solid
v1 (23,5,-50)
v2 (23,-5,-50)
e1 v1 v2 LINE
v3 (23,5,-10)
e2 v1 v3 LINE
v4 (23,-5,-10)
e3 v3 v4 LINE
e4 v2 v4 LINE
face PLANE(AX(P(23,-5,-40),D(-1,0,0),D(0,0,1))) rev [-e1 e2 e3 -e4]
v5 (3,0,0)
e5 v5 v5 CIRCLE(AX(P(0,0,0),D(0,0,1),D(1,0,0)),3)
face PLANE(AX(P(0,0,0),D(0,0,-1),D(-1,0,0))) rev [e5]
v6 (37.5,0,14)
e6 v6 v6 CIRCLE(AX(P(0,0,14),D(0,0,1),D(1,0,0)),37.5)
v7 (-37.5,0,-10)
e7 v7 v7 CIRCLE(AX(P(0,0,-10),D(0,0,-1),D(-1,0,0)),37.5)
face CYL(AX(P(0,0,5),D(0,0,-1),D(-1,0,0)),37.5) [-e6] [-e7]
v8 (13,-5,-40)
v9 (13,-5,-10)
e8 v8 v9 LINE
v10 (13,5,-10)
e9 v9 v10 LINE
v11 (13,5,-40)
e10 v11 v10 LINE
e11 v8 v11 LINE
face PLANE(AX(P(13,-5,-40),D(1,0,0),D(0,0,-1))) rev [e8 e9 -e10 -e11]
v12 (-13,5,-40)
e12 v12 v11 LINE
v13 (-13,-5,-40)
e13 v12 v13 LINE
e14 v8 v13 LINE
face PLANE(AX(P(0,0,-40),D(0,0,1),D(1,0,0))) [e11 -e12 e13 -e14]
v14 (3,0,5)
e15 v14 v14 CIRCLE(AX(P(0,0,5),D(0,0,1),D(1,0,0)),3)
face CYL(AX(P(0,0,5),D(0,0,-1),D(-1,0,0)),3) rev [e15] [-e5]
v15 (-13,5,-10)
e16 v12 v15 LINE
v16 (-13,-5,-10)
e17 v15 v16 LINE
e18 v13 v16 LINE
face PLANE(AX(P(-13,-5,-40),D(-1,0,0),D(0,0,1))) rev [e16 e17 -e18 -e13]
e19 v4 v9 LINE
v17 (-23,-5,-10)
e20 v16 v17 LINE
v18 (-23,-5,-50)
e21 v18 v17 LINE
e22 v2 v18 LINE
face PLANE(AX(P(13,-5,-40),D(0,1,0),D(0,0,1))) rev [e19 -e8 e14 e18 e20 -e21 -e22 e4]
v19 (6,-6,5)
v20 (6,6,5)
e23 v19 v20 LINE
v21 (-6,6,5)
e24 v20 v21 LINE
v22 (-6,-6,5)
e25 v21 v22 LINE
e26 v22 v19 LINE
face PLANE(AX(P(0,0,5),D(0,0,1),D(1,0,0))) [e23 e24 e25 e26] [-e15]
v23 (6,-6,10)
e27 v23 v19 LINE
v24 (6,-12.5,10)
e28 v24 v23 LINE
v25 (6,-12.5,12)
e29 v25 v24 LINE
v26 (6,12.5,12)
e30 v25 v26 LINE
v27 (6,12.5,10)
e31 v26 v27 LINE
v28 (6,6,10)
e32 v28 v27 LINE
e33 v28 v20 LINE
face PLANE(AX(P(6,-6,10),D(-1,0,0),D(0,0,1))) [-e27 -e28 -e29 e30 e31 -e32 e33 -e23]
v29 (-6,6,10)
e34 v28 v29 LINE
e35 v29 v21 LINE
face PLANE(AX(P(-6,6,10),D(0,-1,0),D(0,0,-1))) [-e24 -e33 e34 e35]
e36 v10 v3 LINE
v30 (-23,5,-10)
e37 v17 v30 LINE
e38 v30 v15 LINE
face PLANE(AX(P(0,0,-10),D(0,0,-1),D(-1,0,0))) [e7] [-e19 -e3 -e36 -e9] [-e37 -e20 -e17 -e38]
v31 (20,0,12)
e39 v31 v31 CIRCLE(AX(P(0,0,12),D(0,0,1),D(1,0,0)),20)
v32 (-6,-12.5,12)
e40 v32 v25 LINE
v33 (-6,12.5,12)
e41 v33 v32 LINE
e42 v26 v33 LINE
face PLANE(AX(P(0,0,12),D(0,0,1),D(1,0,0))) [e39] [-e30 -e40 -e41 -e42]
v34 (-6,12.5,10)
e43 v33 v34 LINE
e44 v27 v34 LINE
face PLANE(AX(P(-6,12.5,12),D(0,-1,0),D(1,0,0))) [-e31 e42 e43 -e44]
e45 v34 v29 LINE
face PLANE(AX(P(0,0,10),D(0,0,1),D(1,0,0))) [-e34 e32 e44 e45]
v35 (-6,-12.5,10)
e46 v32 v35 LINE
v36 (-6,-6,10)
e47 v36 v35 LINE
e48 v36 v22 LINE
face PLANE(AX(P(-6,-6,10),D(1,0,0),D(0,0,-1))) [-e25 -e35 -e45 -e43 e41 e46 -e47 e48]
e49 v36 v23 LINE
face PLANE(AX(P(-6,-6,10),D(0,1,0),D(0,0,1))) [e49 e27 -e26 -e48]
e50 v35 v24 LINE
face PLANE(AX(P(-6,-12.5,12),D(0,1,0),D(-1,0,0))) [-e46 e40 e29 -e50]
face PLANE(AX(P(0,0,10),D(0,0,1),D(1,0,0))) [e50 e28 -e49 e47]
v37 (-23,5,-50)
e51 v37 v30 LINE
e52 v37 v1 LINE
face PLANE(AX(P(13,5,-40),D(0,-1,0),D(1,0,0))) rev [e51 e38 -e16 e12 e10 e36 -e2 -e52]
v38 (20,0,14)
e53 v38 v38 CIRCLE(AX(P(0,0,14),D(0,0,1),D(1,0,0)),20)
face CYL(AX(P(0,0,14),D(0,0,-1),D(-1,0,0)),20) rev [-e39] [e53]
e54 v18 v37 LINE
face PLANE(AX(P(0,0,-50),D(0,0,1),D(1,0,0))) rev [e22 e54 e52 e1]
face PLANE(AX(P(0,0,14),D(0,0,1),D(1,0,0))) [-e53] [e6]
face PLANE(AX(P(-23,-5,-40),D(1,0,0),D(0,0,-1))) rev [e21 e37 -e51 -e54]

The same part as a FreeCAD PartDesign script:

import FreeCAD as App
import Part
import Sketcher
from FreeCAD import Vector


def add_polygon(sketch, points):
    """Adds a closed chain of lines whose ends are joined by coincident constraints."""
    first, n = sketch.GeometryCount, len(points)
    for a, b in zip(points, points[1:] + points[:1]):
        sketch.addGeometry(Part.LineSegment(App.Vector(*a, 0), App.Vector(*b, 0)), False)
    for i in range(n):
        sketch.addConstraint(Sketcher.Constraint("Coincident", first + i, 2, first + (i + 1) % n, 1))

doc = App.newDocument("Part")
body = doc.addObject("PartDesign::Body", "Body")

# Sketch on XY plane
sketch1 = body.newObject("Sketcher::SketchObject", "Sketch")
sketch1.AttachmentSupport = (doc.getObject("XY_Plane"), [""])
sketch1.MapMode = "FlatFace"
sketch1.addGeometry([
    Part.Circle(Vector(0, 0, 0), Vector(0, 0, 1), 37.5),
    Part.Circle(Vector(0, 0, 0), Vector(0, 0, 1), 3),
], False)
sketch1.addConstraint([
    Sketcher.Constraint("Coincident", 0, 3, -1, 1),
    Sketcher.Constraint("Coincident", 1, 3, -1, 1),
    Sketcher.Constraint("Diameter", 0, 75.0),
    Sketcher.Constraint("Diameter", 1, 6.0),
])
pad1 = body.newObject("PartDesign::Pad", "Pad")
pad1.Profile = sketch1
pad1.Length = 5

# Sketch on XY plane
sketch2 = body.newObject("Sketcher::SketchObject", "Sketch001")
sketch2.AttachmentSupport = (doc.getObject("XY_Plane"), [""])
sketch2.MapMode = "FlatFace"
sketch2.AttachmentOffset = App.Placement(Vector(0, 0, -10), App.Rotation())
sketch2.addGeometry(Part.Circle(Vector(0, 0, 0), Vector(0, 0, 1), 38), False)
sketch2.addConstraint([
    Sketcher.Constraint("Coincident", 0, 3, -1, 1),
    Sketcher.Constraint("Diameter", 0, 75.0),
])
pad2 = body.newObject("PartDesign::Pad", "Pad001")
pad2.Profile = sketch2
pad2.Length = 10

# Sketch on XY plane
sketch3 = body.newObject("Sketcher::SketchObject", "Sketch002")
sketch3.AttachmentSupport = (doc.getObject("XY_Plane"), [""])
sketch3.MapMode = "FlatFace"
sketch3.AttachmentOffset = App.Placement(Vector(0, 0, 5), App.Rotation())
sketch3.addGeometry(Part.Circle(Vector(0, 0, 0), Vector(0, 0, 1), 38), False)  # 0
add_polygon(sketch3, [(6, -6), (-6, -6), (-6, 6), (6, 6)])  # lines 1-4
sketch3.addConstraint([
    Sketcher.Constraint("Horizontal", 1),
    Sketcher.Constraint("Vertical", 2),
    Sketcher.Constraint("Horizontal", 3),
    Sketcher.Constraint("Vertical", 4),
    Sketcher.Constraint("Coincident", 0, 3, -1, 1),
    Sketcher.Constraint("Symmetric", 1, 2, 3, 2, -1, 1),
    Sketcher.Constraint("Equal", 3, 2),
    Sketcher.Constraint("Diameter", 0, 75.0),
    Sketcher.Constraint("DistanceX", 1, 2, 1, 1, 12.0),
])
pad3 = body.newObject("PartDesign::Pad", "Pad002")
pad3.Profile = sketch3
pad3.Length = 5

# Sketch on XY plane
sketch4 = body.newObject("Sketcher::SketchObject", "Sketch003")
sketch4.AttachmentSupport = (doc.getObject("XY_Plane"), [""])
sketch4.MapMode = "FlatFace"
sketch4.AttachmentOffset = App.Placement(Vector(0, 0, 10), App.Rotation())
sketch4.addGeometry(Part.Circle(Vector(0, 0, 0), Vector(0, 0, 1), 38), False)  # 0
add_polygon(sketch4, [(6, -12), (-6, -12), (-6, 12), (6, 12)])  # lines 1-4
sketch4.addConstraint([
    Sketcher.Constraint("Horizontal", 1),
    Sketcher.Constraint("Vertical", 2),
    Sketcher.Constraint("Horizontal", 3),
    Sketcher.Constraint("Vertical", 4),
    Sketcher.Constraint("Coincident", 0, 3, -1, 1),
    Sketcher.Constraint("Symmetric", 1, 2, 3, 2, -1, 1),
    Sketcher.Constraint("Diameter", 0, 75.0),
    Sketcher.Constraint("DistanceX", 1, 2, 1, 1, 12.0),
    Sketcher.Constraint("DistanceY", 2, 1, 2, 2, 25.0),
])
pad4 = body.newObject("PartDesign::Pad", "Pad003")
pad4.Profile = sketch4
pad4.Length = 2

# Sketch on XY plane
sketch5 = body.newObject("Sketcher::SketchObject", "Sketch004")
sketch5.AttachmentSupport = (doc.getObject("XY_Plane"), [""])
sketch5.MapMode = "FlatFace"
sketch5.AttachmentOffset = App.Placement(Vector(0, 0, 12), App.Rotation())
sketch5.addGeometry([
    Part.Circle(Vector(0, 0, 0), Vector(0, 0, 1), 38),
    Part.Circle(Vector(0, 0, 0), Vector(0, 0, 1), 20),
], False)
sketch5.addConstraint([
    Sketcher.Constraint("Coincident", 0, 3, -1, 1),
    Sketcher.Constraint("Coincident", 1, 3, -1, 1),
    Sketcher.Constraint("Diameter", 0, 75.0),
    Sketcher.Constraint("Diameter", 1, 40.0),
])
pad5 = body.newObject("PartDesign::Pad", "Pad004")
pad5.Profile = sketch5
pad5.Length = 2

# Sketch on XY plane
sketch6 = body.newObject("Sketcher::SketchObject", "Sketch005")
sketch6.AttachmentSupport = (doc.getObject("XY_Plane"), [""])
sketch6.MapMode = "FlatFace"
sketch6.AttachmentOffset = App.Placement(Vector(0, 0, -10), App.Rotation())
add_polygon(sketch6, [(23, 5), (23, -5), (13, -5), (13, 5)])  # lines 0-3
add_polygon(sketch6, [(-13, 5), (-13, -5), (-23, -5), (-23, 5)])  # lines 4-7
sketch6.addConstraint([
    Sketcher.Constraint("Vertical", 0),
    Sketcher.Constraint("Horizontal", 1),
    Sketcher.Constraint("Vertical", 2),
    Sketcher.Constraint("Horizontal", 3),
    Sketcher.Constraint("Vertical", 4),
    Sketcher.Constraint("Horizontal", 5),
    Sketcher.Constraint("Vertical", 6),
    Sketcher.Constraint("Horizontal", 7),
    Sketcher.Constraint("Symmetric", 2, 2, 4, 2, -1, 1),
    Sketcher.Constraint("Symmetric", 0, 2, 6, 2, -1, 1),
    Sketcher.Constraint("Horizontal", 1, 2, 4, 2),
    Sketcher.Constraint("Equal", 7, 0),
    Sketcher.Constraint("DistanceX", 1, 2, 1, 1, 10.0),
    Sketcher.Constraint("DistanceX", -1, 1, 0, 2, 23.0),
])
pad6 = body.newObject("PartDesign::Pad", "Pad005")
pad6.Profile = sketch6
pad6.Length = 30
pad6.Reversed = True

# Sketch on XY plane
sketch7 = body.newObject("Sketcher::SketchObject", "Sketch006")
sketch7.AttachmentSupport = (doc.getObject("XY_Plane"), [""])
sketch7.MapMode = "FlatFace"
sketch7.AttachmentOffset = App.Placement(Vector(0, 0, -40), App.Rotation())
add_polygon(sketch7, [(23, 5), (23, -5), (-23, -5), (-23, 5)])  # lines 0-3
sketch7.addConstraint([
    Sketcher.Constraint("Vertical", 0),
    Sketcher.Constraint("Horizontal", 1),
    Sketcher.Constraint("Vertical", 2),
    Sketcher.Constraint("Horizontal", 3),
    Sketcher.Constraint("Symmetric", 0, 2, 2, 2, -1, 1),
    Sketcher.Constraint("DistanceX", 1, 2, 1, 1, 46.0),
    Sketcher.Constraint("DistanceY", 0, 2, 0, 1, 10.0),
])
pad7 = body.newObject("PartDesign::Pad", "Pad006")
pad7.Profile = sketch7
pad7.Length = 10
pad7.Reversed = True

doc.recompute()
